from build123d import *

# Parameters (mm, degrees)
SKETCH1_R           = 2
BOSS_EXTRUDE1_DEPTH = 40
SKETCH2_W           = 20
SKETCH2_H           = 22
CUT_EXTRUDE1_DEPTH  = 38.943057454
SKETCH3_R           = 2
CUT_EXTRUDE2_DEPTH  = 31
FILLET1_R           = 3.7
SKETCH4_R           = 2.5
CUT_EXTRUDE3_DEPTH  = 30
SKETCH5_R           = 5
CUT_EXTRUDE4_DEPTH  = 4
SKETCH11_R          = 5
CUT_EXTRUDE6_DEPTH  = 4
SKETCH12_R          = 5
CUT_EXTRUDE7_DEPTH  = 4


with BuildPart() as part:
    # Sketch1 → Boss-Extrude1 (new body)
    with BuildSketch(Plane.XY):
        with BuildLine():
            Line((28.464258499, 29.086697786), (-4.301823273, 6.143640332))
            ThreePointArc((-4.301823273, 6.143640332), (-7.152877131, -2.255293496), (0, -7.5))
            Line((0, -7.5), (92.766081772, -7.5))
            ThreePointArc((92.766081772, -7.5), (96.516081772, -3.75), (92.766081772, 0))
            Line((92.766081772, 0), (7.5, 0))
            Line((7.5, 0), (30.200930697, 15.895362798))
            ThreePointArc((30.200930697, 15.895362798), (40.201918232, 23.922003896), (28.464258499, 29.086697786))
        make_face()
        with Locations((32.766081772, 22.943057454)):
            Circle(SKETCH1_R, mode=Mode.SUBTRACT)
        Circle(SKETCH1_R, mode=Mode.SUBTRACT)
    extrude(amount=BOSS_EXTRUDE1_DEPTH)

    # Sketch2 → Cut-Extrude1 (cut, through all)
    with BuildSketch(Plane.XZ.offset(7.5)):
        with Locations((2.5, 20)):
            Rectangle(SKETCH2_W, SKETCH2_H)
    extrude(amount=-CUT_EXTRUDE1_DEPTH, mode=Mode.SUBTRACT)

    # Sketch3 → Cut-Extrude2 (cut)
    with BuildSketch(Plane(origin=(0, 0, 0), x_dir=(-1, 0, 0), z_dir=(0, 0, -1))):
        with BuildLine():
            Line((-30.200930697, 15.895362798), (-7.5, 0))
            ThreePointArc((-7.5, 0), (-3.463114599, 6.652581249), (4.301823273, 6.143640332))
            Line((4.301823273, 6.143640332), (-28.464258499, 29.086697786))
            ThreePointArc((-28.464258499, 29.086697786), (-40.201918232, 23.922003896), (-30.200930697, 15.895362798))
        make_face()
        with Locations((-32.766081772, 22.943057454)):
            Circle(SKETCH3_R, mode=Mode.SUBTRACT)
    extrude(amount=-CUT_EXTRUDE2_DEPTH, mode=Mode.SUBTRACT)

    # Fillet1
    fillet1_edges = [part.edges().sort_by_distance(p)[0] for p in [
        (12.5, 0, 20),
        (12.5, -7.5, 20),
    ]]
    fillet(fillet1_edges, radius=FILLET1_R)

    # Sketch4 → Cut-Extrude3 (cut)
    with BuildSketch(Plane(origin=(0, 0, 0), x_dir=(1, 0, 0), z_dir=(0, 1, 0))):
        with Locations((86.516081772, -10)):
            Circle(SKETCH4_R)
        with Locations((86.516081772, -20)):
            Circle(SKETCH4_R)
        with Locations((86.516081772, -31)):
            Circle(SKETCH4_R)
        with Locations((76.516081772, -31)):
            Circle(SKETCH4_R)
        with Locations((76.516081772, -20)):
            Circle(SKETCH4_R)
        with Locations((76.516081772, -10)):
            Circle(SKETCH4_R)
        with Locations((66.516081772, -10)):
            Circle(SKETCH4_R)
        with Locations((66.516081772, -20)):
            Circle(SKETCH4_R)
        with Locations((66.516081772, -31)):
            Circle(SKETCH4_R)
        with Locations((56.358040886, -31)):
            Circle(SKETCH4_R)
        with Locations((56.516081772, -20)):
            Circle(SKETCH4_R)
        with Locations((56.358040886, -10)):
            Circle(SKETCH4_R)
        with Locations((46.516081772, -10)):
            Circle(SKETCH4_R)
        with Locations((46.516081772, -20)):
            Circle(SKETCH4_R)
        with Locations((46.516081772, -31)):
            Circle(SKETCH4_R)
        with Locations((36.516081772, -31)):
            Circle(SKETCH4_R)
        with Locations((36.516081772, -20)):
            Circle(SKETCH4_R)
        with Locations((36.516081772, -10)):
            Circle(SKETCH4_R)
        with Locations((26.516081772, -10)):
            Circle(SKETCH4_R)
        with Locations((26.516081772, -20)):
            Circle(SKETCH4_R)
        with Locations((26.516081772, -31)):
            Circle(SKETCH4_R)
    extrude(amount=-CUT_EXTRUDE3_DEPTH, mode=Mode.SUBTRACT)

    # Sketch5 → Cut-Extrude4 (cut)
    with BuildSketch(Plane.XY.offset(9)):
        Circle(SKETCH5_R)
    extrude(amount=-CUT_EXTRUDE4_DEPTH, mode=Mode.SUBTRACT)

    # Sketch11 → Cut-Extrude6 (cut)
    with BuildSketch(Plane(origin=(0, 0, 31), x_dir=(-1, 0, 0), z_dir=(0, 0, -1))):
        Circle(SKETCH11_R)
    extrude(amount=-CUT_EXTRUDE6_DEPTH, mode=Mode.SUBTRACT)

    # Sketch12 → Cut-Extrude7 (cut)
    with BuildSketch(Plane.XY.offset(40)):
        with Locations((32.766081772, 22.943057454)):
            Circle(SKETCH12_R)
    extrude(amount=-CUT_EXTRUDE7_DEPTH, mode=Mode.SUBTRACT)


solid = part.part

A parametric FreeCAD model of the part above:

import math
import FreeCAD as App
import Part
import Sketcher
Q = App.Units.Quantity


def edges_at(feature, points):
    """Names of the edges that pass closest to the given points."""
    edges = feature.Shape.Edges
    near = lambda p: min(range(len(edges)), key=lambda i: edges[i].distToShape(Part.Vertex(*p))[0])
    return sorted({f"Edge{near(p) + 1}" for p in points})

doc = App.newDocument("Part")
body = doc.addObject("PartDesign::Body", "Body")

# Sketch on XY plane
sketch1 = body.newObject("Sketcher::SketchObject", "Sketch")
sketch1.AttachmentSupport = (doc.getObject("XY_Plane"), [""])
sketch1.MapMode = "FlatFace"
sketch1.addGeometry([
    Part.LineSegment(App.Vector(28.5, 29.1, 0), App.Vector(-4.3, 6.1, 0)),  # 0
    Part.ArcOfCircle(Part.Circle(App.Vector(0, 0, 0), App.Vector(0, 0, 1), 7.5), math.radians(125), math.radians(270)),  # 1
    Part.LineSegment(App.Vector(0, -7.5, 0), App.Vector(92.8, -7.5, 0)),  # 2
    Part.ArcOfCircle(Part.Circle(App.Vector(92.8, -3.8, 0), App.Vector(0, 0, 1), 3.8), math.radians(-90), math.radians(90)),  # 3
    Part.LineSegment(App.Vector(92.8, 0, 0), App.Vector(7.5, 0, 0)),  # 4
    Part.LineSegment(App.Vector(7.5, 0, 0), App.Vector(30.2, 15.9, 0)),  # 5
    Part.ArcOfCircle(Part.Circle(App.Vector(32.8, 22.9, 0), App.Vector(0, 0, 1), 7.5), math.radians(-110), math.radians(125)),  # 6
    Part.Circle(App.Vector(0, 0, 0), App.Vector(0, 0, 1), 2),  # 7
    Part.Circle(App.Vector(32.8, 22.9, 0), App.Vector(0, 0, 1), 2),  # 8
], False)
sketch1.addConstraint([
    Sketcher.Constraint("Tangent", 0, 2, 1, 1),
    Sketcher.Constraint("Tangent", 1, 2, 2, 1),
    Sketcher.Constraint("Tangent", 2, 2, 3, 1),
    Sketcher.Constraint("Tangent", 3, 2, 4, 1),
    Sketcher.Constraint("Coincident", 4, 2, 5, 1),
    Sketcher.Constraint("Coincident", 5, 2, 6, 1),
    Sketcher.Constraint("Tangent", 6, 2, 0, 1),
    Sketcher.Constraint("Horizontal", 2),
    Sketcher.Constraint("Horizontal", 4),
    Sketcher.Constraint("Coincident", 1, 3, -1, 1),
    Sketcher.Constraint("Coincident", 7, 3, -1, 1),
    Sketcher.Constraint("Coincident", 8, 3, 6, 3),
    Sketcher.Constraint("Equal", 1, 6),
    Sketcher.Constraint("Equal", 7, 8),
    Sketcher.Constraint("PointOnObject", 3, 2, -1),
    Sketcher.Constraint("Parallel", 0, 5),
    Sketcher.Constraint("Diameter", 7, Q("4 mm")),
    Sketcher.Constraint("Radius", 1, Q("7.5 mm")),
    Sketcher.Constraint("Angle", 0, Q("-145 deg")),
    Sketcher.Constraint("Distance", 0, Q("40 mm")),
    Sketcher.Constraint("DistanceX", 6, 3, 3, 3, Q("60 mm")),
    Sketcher.Constraint("DistanceX", -1, 1, 4, 2, Q("7.5 mm")),
])
pad1 = body.newObject("PartDesign::Pad", "Pad")
pad1.Profile = sketch1
pad1.Length = 40

# Sketch on XZ plane
sketch2 = body.newObject("Sketcher::SketchObject", "Sketch001")
sketch2.AttachmentSupport = (doc.getObject("XZ_Plane"), [""])
sketch2.MapMode = "FlatFace"
sketch2.AttachmentOffset = App.Placement(App.Vector(0, 0, 7.5), App.Rotation())
sketch2.addGeometry([
    Part.LineSegment(App.Vector(-8, 31, 0), App.Vector(-8, 9, 0)),
    Part.LineSegment(App.Vector(-8, 9, 0), App.Vector(12, 9, 0)),
    Part.LineSegment(App.Vector(12, 9, 0), App.Vector(12, 31, 0)),
    Part.LineSegment(App.Vector(12, 31, 0), App.Vector(-8, 31, 0)),
], False)
sketch2.addConstraint([
    Sketcher.Constraint("Coincident", 0, 2, 1, 1),
    Sketcher.Constraint("Coincident", 1, 2, 2, 1),
    Sketcher.Constraint("Coincident", 2, 2, 3, 1),
    Sketcher.Constraint("Coincident", 3, 2, 0, 1),
    Sketcher.Constraint("Vertical", 0),
    Sketcher.Constraint("Horizontal", 1),
    Sketcher.Constraint("Vertical", 2),
    Sketcher.Constraint("Horizontal", 3),
    Sketcher.Constraint("DistanceX", 1, 1, 1, 2, Q("20 mm")),
    Sketcher.Constraint("DistanceY", 0, 2, 0, 1, Q("22 mm")),
    Sketcher.Constraint("DistanceY", -1, 1, 0, 2, Q("9 mm")),
    Sketcher.Constraint("DistanceX", 0, 2, -1, 1, Q("7.5 mm")),
])
pocket1 = body.newObject("PartDesign::Pocket", "Pocket")
pocket1.Profile = sketch2
pocket1.Type = "ThroughAll"

# Sketch on XY plane
sketch3 = body.newObject("Sketcher::SketchObject", "Sketch002")
sketch3.AttachmentSupport = (doc.getObject("XY_Plane"), [""])
sketch3.MapMode = "FlatFace"
sketch3.addGeometry([
    Part.LineSegment(App.Vector(30.2, 15.9, 0), App.Vector(7.5, 0, 0)),  # 0
    Part.ArcOfCircle(Part.Circle(App.Vector(0, 0, 0), App.Vector(0, 0, 1), 7.5), math.radians(0), math.radians(125)),  # 1
    Part.LineSegment(App.Vector(-4.3, 6.1, 0), App.Vector(28.5, 29.1, 0)),  # 2
    Part.ArcOfCircle(Part.Circle(App.Vector(32.8, 22.9, 0), App.Vector(0, 0, 1), 7.5), math.radians(-110), math.radians(125)),  # 3
    Part.Circle(App.Vector(32.8, 22.9, 0), App.Vector(0, 0, 1), 2),  # 4
], False)
sketch3.addConstraint([
    Sketcher.Constraint("Coincident", 0, 2, 1, 1),
    Sketcher.Constraint("Tangent", 1, 2, 2, 1),
    Sketcher.Constraint("Tangent", 2, 2, 3, 2),
    Sketcher.Constraint("Coincident", 3, 1, 0, 1),
    Sketcher.Constraint("Coincident", 1, 3, -1, 1),
    Sketcher.Constraint("Coincident", 4, 3, 3, 3),
    Sketcher.Constraint("Equal", 1, 3),
    Sketcher.Constraint("PointOnObject", 0, 2, -1),
    Sketcher.Constraint("Parallel", 0, 2),
    Sketcher.Constraint("Diameter", 4, Q("4 mm")),
    Sketcher.Constraint("Radius", 1, Q("7.5 mm")),
    Sketcher.Constraint("Angle", 0, Q("-145 deg")),
    Sketcher.Constraint("Distance", 2, Q("40 mm")),
])
pocket2 = body.newObject("PartDesign::Pocket", "Pocket001")
pocket2.Profile = sketch3
pocket2.Length = 31
pocket2.Reversed = True
doc.recompute()

fillet = body.newObject("PartDesign::Fillet", "Fillet")
fillet.Base = (pocket2, edges_at(pocket2, [(12.5, 0, 20), (12.5, -7.5, 20)]))
fillet.Radius = 3.7

# Sketch on XZ plane
sketch4 = body.newObject("Sketcher::SketchObject", "Sketch003")
sketch4.AttachmentSupport = (doc.getObject("XZ_Plane"), [""])
sketch4.MapMode = "FlatFace"
sketch4.addGeometry([
    Part.Circle(App.Vector(86.5, 10, 0), App.Vector(0, 0, 1), 2.5),  # 0
    Part.Circle(App.Vector(86.5, 20, 0), App.Vector(0, 0, 1), 2.5),  # 1
    Part.Circle(App.Vector(86.5, 31, 0), App.Vector(0, 0, 1), 2.5),  # 2
    Part.Circle(App.Vector(76.5, 31, 0), App.Vector(0, 0, 1), 2.5),  # 3
    Part.Circle(App.Vector(76.5, 20, 0), App.Vector(0, 0, 1), 2.5),  # 4
    Part.Circle(App.Vector(76.5, 10, 0), App.Vector(0, 0, 1), 2.5),  # 5
    Part.Circle(App.Vector(66.5, 10, 0), App.Vector(0, 0, 1), 2.5),  # 6
    Part.Circle(App.Vector(66.5, 20, 0), App.Vector(0, 0, 1), 2.5),  # 7
    Part.Circle(App.Vector(66.5, 31, 0), App.Vector(0, 0, 1), 2.5),  # 8
    Part.Circle(App.Vector(56.4, 31, 0), App.Vector(0, 0, 1), 2.5),  # 9
    Part.Circle(App.Vector(56.5, 20, 0), App.Vector(0, 0, 1), 2.5),  # 10
    Part.Circle(App.Vector(56.4, 10, 0), App.Vector(0, 0, 1), 2.5),  # 11
    Part.Circle(App.Vector(46.5, 10, 0), App.Vector(0, 0, 1), 2.5),  # 12
    Part.Circle(App.Vector(46.5, 20, 0), App.Vector(0, 0, 1), 2.5),  # 13
    Part.Circle(App.Vector(46.5, 31, 0), App.Vector(0, 0, 1), 2.5),  # 14
    Part.Circle(App.Vector(36.5, 31, 0), App.Vector(0, 0, 1), 2.5),  # 15
    Part.Circle(App.Vector(36.5, 20, 0), App.Vector(0, 0, 1), 2.5),  # 16
    Part.Circle(App.Vector(36.5, 10, 0), App.Vector(0, 0, 1), 2.5),  # 17
    Part.Circle(App.Vector(26.5, 10, 0), App.Vector(0, 0, 1), 2.5),  # 18
    Part.Circle(App.Vector(26.5, 20, 0), App.Vector(0, 0, 1), 2.5),  # 19
    Part.Circle(App.Vector(26.5, 31, 0), App.Vector(0, 0, 1), 2.5),  # 20
], False)
sketch4.addConstraint([
    Sketcher.Constraint("Equal", 0, 1),
    Sketcher.Constraint("Equal", 1, 2),
    Sketcher.Constraint("Equal", 2, 3),
    Sketcher.Constraint("Equal", 3, 4),
    Sketcher.Constraint("Equal", 4, 5),
    Sketcher.Constraint("Equal", 5, 6),
    Sketcher.Constraint("Equal", 6, 7),
    Sketcher.Constraint("Equal", 7, 8),
    Sketcher.Constraint("Equal", 8, 9),
    Sketcher.Constraint("Equal", 9, 10),
    Sketcher.Constraint("Equal", 10, 11),
    Sketcher.Constraint("Equal", 11, 12),
    Sketcher.Constraint("Equal", 12, 13),
    Sketcher.Constraint("Equal", 13, 14),
    Sketcher.Constraint("Equal", 14, 15),
    Sketcher.Constraint("Equal", 15, 16),
    Sketcher.Constraint("Equal", 16, 17),
    Sketcher.Constraint("Equal", 17, 18),
    Sketcher.Constraint("Equal", 18, 19),
    Sketcher.Constraint("Equal", 19, 20),
    Sketcher.Constraint("Horizontal", 2, 3, 3, 3),
    Sketcher.Constraint("Horizontal", 1, 3, 4, 3),
    Sketcher.Constraint("Horizontal", 0, 3, 5, 3),
    Sketcher.Constraint("Horizontal", 5, 3, 6, 3),
    Sketcher.Constraint("Horizontal", 4, 3, 7, 3),
    Sketcher.Constraint("Horizontal", 3, 3, 8, 3),
    Sketcher.Constraint("Horizontal", 8, 3, 9, 3),
    Sketcher.Constraint("Horizontal", 7, 3, 10, 3),
    Sketcher.Constraint("Horizontal", 6, 3, 11, 3),
    Sketcher.Constraint("Horizontal", 11, 3, 12, 3),
    Sketcher.Constraint("Horizontal", 10, 3, 13, 3),
    Sketcher.Constraint("Horizontal", 9, 3, 14, 3),
    Sketcher.Constraint("Horizontal", 14, 3, 15, 3),
    Sketcher.Constraint("Horizontal", 13, 3, 16, 3),
    Sketcher.Constraint("Horizontal", 12, 3, 17, 3),
    Sketcher.Constraint("Horizontal", 17, 3, 18, 3),
    Sketcher.Constraint("Horizontal", 16, 3, 19, 3),
    Sketcher.Constraint("Horizontal", 15, 3, 20, 3),
    Sketcher.Constraint("Vertical", 0, 3, 1, 3),
    Sketcher.Constraint("Vertical", 1, 3, 2, 3),
    Sketcher.Constraint("Vertical", 3, 3, 4, 3),
    Sketcher.Constraint("Vertical", 4, 3, 5, 3),
    Sketcher.Constraint("Vertical", 6, 3, 7, 3),
    Sketcher.Constraint("Vertical", 7, 3, 8, 3),
    Sketcher.Constraint("Vertical", 9, 3, 11, 3),
    Sketcher.Constraint("Vertical", 12, 3, 13, 3),
    Sketcher.Constraint("Vertical", 13, 3, 14, 3),
    Sketcher.Constraint("Vertical", 15, 3, 16, 3),
    Sketcher.Constraint("Vertical", 16, 3, 17, 3),
    Sketcher.Constraint("Vertical", 18, 3, 19, 3),
    Sketcher.Constraint("Vertical", 19, 3, 20, 3),
    Sketcher.Constraint("Diameter", 0, Q("5 mm")),
    Sketcher.Constraint("DistanceY", -1, 1, 0, 3, Q("10 mm")),
    Sketcher.Constraint("DistanceY", -1, 1, 1, 3, Q("20 mm")),
    Sketcher.Constraint("DistanceY", -1, 1, 2, 3, Q("31 mm")),
    Sketcher.Constraint("DistanceX", 3, 3, 2, 3, Q("10 mm")),
    Sketcher.Constraint("DistanceX", 6, 3, 5, 3, Q("10 mm")),
    Sketcher.Constraint("DistanceX", 10, 3, 7, 3, Q("10 mm")),
    Sketcher.Constraint("DistanceX", 12, 3, 10, 3, Q("10 mm")),
    Sketcher.Constraint("DistanceX", 15, 3, 14, 3, Q("10 mm")),
    Sketcher.Constraint("DistanceX", 18, 3, 17, 3, Q("10 mm")),
    Sketcher.Constraint("DistanceX", -1, 1, 0, 3, Q("86.516082 mm")),
    Sketcher.Constraint("DistanceX", -1, 1, 9, 3, Q("56.358041 mm")),
])
pocket3 = body.newObject("PartDesign::Pocket", "Pocket002")
pocket3.Profile = sketch4
pocket3.Length = 30
pocket3.Reversed = True

# Sketch on XY plane
sketch5 = body.newObject("Sketcher::SketchObject", "Sketch004")
sketch5.AttachmentSupport = (doc.getObject("XY_Plane"), [""])
sketch5.MapMode = "FlatFace"
sketch5.AttachmentOffset = App.Placement(App.Vector(0, 0, 9), App.Rotation())
sketch5.addGeometry(Part.Circle(App.Vector(0, 0, 0), App.Vector(0, 0, 1), 5), False)
sketch5.addConstraint([
    Sketcher.Constraint("Coincident", 0, 3, -1, 1),
    Sketcher.Constraint("Diameter", 0, Q("10 mm")),
])
pocket4 = body.newObject("PartDesign::Pocket", "Pocket003")
pocket4.Profile = sketch5
pocket4.Length = 4

# Sketch on XY plane
sketch6 = body.newObject("Sketcher::SketchObject", "Sketch005")
sketch6.AttachmentSupport = (doc.getObject("XY_Plane"), [""])
sketch6.MapMode = "FlatFace"
sketch6.AttachmentOffset = App.Placement(App.Vector(0, 0, 31), App.Rotation())
sketch6.addGeometry(Part.Circle(App.Vector(0, 0, 0), App.Vector(0, 0, 1), 5), False)
sketch6.addConstraint([
    Sketcher.Constraint("Coincident", 0, 3, -1, 1),
    Sketcher.Constraint("Diameter", 0, Q("10 mm")),
])
pocket5 = body.newObject("PartDesign::Pocket", "Pocket004")
pocket5.Profile = sketch6
pocket5.Length = 4
pocket5.Reversed = True

# Sketch on XY plane
sketch7 = body.newObject("Sketcher::SketchObject", "Sketch006")
sketch7.AttachmentSupport = (doc.getObject("XY_Plane"), [""])
sketch7.MapMode = "FlatFace"
sketch7.AttachmentOffset = App.Placement(App.Vector(0, 0, 40), App.Rotation())
sketch7.addGeometry(Part.Circle(App.Vector(33, 23, 0), App.Vector(0, 0, 1), 5), False)
sketch7.addConstraint([
    Sketcher.Constraint("Diameter", 0, Q("10 mm")),
    Sketcher.Constraint("DistanceX", -1, 1, 0, 3, Q("32.766082 mm")),
    Sketcher.Constraint("DistanceY", -1, 1, 0, 3, Q("22.943057 mm")),
])
pocket6 = body.newObject("PartDesign::Pocket", "Pocket005")
pocket6.Profile = sketch7
pocket6.Length = 4

doc.recompute()
